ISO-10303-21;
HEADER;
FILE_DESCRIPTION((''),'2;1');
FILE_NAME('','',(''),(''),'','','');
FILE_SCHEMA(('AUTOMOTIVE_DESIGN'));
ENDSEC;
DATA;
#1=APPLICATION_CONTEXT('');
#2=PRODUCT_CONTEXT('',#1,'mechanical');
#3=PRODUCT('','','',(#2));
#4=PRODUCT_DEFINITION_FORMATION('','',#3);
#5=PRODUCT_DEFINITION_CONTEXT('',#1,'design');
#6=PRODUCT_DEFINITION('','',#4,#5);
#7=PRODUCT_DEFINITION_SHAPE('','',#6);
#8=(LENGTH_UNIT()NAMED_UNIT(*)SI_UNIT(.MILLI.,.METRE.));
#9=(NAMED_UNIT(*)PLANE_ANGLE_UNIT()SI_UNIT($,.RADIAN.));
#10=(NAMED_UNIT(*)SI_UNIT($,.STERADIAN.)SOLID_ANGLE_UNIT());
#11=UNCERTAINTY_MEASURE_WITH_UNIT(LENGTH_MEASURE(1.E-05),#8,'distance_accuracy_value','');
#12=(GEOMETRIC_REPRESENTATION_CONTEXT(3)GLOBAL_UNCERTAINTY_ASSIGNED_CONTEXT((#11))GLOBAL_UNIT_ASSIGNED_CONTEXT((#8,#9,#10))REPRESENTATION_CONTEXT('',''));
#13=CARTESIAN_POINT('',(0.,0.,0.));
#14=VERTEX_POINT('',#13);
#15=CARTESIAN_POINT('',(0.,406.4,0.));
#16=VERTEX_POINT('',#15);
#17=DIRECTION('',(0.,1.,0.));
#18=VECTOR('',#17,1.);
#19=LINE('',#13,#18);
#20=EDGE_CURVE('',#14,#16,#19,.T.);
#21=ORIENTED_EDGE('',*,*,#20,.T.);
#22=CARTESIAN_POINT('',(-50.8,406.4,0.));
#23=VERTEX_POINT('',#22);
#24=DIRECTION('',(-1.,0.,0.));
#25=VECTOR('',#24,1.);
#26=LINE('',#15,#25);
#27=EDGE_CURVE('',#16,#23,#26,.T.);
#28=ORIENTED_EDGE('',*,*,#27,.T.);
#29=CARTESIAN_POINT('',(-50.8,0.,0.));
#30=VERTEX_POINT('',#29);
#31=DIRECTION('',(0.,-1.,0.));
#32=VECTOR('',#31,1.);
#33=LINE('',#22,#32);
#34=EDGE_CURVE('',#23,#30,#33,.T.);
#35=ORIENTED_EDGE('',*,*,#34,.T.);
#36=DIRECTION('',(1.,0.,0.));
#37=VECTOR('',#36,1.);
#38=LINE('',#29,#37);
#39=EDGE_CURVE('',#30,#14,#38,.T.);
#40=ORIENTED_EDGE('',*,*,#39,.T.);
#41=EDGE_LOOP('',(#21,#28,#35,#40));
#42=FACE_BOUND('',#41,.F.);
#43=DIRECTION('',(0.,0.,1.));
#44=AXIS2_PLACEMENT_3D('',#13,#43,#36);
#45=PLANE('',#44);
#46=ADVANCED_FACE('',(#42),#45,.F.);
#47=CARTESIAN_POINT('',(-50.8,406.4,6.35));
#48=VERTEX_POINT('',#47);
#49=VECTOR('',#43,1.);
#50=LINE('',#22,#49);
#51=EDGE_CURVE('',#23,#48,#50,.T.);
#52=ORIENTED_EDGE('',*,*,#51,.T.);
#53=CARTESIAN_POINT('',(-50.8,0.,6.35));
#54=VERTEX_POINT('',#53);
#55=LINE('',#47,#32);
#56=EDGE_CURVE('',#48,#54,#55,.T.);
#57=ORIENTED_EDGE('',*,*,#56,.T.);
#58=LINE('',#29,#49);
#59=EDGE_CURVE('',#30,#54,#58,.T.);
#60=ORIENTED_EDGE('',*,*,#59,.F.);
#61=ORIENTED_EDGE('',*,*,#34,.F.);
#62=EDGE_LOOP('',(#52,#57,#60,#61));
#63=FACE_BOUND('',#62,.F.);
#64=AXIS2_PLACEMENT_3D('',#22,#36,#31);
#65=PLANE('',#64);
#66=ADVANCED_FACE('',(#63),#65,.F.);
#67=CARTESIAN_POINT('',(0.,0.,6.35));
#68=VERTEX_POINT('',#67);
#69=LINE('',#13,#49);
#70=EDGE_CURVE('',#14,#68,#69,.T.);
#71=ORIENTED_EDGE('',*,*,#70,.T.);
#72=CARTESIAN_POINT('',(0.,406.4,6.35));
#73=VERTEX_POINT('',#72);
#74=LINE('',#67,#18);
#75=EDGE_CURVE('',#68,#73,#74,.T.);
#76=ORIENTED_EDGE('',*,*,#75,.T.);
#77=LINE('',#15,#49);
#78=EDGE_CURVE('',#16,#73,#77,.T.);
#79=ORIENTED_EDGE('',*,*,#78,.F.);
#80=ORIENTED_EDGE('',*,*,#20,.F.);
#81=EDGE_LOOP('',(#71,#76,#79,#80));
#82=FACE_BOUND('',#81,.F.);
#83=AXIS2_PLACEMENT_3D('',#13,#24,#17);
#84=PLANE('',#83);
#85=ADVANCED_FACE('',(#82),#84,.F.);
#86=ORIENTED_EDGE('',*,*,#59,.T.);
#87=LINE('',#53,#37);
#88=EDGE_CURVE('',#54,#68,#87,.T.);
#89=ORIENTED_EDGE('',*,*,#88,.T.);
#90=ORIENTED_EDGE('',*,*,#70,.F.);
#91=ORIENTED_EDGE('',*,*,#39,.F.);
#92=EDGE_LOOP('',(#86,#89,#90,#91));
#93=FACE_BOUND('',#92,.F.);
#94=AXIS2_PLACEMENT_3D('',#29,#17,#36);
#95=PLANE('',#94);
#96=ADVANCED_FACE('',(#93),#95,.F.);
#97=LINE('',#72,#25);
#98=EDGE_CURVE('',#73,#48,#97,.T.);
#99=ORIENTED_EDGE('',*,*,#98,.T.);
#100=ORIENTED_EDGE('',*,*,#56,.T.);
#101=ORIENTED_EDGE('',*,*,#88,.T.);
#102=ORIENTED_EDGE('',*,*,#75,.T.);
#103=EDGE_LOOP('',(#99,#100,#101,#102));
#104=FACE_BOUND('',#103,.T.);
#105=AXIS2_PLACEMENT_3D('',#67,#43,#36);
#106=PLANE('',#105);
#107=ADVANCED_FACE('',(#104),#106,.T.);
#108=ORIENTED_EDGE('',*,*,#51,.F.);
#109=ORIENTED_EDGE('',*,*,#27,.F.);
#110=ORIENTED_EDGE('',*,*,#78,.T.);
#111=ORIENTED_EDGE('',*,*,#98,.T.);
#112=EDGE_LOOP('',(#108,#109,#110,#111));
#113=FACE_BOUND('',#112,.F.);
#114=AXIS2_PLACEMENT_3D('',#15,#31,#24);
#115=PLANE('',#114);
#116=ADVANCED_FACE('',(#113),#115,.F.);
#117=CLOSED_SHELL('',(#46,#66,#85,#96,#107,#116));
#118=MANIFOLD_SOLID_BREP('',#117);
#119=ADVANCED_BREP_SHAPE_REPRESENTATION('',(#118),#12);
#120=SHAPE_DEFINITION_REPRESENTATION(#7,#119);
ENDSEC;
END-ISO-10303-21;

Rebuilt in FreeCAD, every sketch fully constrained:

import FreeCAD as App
import Part
import Sketcher
from FreeCAD import Vector
Q = App.Units.Quantity


def add_polygon(sketch, points):
    """Adds a closed chain of lines whose ends are joined by coincident constraints."""
    first, n = sketch.GeometryCount, len(points)
    for a, b in zip(points, points[1:] + points[:1]):
        sketch.addGeometry(Part.LineSegment(App.Vector(*a, 0), App.Vector(*b, 0)), False)
    for i in range(n):
        sketch.addConstraint(Sketcher.Constraint("Coincident", first + i, 2, first + (i + 1) % n, 1))

doc = App.newDocument("Part")
body = doc.addObject("PartDesign::Body", "Body")

# Sketch on XY plane
sketch1 = doc.addObject("Sketcher::SketchObject", "Sketch")
body.addObject(sketch1)
sketch1.AttachmentSupport = (doc.XY_Plane, [""])
sketch1.MapMode = "FlatFace"
add_polygon(sketch1, [(-50.8, 0), (0, 0), (0, 406.4), (-50.8, 406.4)])  # lines 0-3
sketch1.addConstraint([
    Sketcher.Constraint("Horizontal", 0),
    Sketcher.Constraint("Vertical", 1),
    Sketcher.Constraint("Horizontal", 2),
    Sketcher.Constraint("Vertical", 3),
    Sketcher.Constraint("Coincident", 0, 2, -1, 1),
    Sketcher.Constraint("DistanceX", 0, 1, 0, 2, Q("2 in")),
    Sketcher.Constraint("DistanceY", 1, 1, 1, 2, Q("16 in")),
])
pad1 = doc.addObject("PartDesign::Pad", "Pad")
body.addObject(pad1)
pad1.Profile = sketch1
pad1.Length = Q("0.25 in")

doc.recompute()
